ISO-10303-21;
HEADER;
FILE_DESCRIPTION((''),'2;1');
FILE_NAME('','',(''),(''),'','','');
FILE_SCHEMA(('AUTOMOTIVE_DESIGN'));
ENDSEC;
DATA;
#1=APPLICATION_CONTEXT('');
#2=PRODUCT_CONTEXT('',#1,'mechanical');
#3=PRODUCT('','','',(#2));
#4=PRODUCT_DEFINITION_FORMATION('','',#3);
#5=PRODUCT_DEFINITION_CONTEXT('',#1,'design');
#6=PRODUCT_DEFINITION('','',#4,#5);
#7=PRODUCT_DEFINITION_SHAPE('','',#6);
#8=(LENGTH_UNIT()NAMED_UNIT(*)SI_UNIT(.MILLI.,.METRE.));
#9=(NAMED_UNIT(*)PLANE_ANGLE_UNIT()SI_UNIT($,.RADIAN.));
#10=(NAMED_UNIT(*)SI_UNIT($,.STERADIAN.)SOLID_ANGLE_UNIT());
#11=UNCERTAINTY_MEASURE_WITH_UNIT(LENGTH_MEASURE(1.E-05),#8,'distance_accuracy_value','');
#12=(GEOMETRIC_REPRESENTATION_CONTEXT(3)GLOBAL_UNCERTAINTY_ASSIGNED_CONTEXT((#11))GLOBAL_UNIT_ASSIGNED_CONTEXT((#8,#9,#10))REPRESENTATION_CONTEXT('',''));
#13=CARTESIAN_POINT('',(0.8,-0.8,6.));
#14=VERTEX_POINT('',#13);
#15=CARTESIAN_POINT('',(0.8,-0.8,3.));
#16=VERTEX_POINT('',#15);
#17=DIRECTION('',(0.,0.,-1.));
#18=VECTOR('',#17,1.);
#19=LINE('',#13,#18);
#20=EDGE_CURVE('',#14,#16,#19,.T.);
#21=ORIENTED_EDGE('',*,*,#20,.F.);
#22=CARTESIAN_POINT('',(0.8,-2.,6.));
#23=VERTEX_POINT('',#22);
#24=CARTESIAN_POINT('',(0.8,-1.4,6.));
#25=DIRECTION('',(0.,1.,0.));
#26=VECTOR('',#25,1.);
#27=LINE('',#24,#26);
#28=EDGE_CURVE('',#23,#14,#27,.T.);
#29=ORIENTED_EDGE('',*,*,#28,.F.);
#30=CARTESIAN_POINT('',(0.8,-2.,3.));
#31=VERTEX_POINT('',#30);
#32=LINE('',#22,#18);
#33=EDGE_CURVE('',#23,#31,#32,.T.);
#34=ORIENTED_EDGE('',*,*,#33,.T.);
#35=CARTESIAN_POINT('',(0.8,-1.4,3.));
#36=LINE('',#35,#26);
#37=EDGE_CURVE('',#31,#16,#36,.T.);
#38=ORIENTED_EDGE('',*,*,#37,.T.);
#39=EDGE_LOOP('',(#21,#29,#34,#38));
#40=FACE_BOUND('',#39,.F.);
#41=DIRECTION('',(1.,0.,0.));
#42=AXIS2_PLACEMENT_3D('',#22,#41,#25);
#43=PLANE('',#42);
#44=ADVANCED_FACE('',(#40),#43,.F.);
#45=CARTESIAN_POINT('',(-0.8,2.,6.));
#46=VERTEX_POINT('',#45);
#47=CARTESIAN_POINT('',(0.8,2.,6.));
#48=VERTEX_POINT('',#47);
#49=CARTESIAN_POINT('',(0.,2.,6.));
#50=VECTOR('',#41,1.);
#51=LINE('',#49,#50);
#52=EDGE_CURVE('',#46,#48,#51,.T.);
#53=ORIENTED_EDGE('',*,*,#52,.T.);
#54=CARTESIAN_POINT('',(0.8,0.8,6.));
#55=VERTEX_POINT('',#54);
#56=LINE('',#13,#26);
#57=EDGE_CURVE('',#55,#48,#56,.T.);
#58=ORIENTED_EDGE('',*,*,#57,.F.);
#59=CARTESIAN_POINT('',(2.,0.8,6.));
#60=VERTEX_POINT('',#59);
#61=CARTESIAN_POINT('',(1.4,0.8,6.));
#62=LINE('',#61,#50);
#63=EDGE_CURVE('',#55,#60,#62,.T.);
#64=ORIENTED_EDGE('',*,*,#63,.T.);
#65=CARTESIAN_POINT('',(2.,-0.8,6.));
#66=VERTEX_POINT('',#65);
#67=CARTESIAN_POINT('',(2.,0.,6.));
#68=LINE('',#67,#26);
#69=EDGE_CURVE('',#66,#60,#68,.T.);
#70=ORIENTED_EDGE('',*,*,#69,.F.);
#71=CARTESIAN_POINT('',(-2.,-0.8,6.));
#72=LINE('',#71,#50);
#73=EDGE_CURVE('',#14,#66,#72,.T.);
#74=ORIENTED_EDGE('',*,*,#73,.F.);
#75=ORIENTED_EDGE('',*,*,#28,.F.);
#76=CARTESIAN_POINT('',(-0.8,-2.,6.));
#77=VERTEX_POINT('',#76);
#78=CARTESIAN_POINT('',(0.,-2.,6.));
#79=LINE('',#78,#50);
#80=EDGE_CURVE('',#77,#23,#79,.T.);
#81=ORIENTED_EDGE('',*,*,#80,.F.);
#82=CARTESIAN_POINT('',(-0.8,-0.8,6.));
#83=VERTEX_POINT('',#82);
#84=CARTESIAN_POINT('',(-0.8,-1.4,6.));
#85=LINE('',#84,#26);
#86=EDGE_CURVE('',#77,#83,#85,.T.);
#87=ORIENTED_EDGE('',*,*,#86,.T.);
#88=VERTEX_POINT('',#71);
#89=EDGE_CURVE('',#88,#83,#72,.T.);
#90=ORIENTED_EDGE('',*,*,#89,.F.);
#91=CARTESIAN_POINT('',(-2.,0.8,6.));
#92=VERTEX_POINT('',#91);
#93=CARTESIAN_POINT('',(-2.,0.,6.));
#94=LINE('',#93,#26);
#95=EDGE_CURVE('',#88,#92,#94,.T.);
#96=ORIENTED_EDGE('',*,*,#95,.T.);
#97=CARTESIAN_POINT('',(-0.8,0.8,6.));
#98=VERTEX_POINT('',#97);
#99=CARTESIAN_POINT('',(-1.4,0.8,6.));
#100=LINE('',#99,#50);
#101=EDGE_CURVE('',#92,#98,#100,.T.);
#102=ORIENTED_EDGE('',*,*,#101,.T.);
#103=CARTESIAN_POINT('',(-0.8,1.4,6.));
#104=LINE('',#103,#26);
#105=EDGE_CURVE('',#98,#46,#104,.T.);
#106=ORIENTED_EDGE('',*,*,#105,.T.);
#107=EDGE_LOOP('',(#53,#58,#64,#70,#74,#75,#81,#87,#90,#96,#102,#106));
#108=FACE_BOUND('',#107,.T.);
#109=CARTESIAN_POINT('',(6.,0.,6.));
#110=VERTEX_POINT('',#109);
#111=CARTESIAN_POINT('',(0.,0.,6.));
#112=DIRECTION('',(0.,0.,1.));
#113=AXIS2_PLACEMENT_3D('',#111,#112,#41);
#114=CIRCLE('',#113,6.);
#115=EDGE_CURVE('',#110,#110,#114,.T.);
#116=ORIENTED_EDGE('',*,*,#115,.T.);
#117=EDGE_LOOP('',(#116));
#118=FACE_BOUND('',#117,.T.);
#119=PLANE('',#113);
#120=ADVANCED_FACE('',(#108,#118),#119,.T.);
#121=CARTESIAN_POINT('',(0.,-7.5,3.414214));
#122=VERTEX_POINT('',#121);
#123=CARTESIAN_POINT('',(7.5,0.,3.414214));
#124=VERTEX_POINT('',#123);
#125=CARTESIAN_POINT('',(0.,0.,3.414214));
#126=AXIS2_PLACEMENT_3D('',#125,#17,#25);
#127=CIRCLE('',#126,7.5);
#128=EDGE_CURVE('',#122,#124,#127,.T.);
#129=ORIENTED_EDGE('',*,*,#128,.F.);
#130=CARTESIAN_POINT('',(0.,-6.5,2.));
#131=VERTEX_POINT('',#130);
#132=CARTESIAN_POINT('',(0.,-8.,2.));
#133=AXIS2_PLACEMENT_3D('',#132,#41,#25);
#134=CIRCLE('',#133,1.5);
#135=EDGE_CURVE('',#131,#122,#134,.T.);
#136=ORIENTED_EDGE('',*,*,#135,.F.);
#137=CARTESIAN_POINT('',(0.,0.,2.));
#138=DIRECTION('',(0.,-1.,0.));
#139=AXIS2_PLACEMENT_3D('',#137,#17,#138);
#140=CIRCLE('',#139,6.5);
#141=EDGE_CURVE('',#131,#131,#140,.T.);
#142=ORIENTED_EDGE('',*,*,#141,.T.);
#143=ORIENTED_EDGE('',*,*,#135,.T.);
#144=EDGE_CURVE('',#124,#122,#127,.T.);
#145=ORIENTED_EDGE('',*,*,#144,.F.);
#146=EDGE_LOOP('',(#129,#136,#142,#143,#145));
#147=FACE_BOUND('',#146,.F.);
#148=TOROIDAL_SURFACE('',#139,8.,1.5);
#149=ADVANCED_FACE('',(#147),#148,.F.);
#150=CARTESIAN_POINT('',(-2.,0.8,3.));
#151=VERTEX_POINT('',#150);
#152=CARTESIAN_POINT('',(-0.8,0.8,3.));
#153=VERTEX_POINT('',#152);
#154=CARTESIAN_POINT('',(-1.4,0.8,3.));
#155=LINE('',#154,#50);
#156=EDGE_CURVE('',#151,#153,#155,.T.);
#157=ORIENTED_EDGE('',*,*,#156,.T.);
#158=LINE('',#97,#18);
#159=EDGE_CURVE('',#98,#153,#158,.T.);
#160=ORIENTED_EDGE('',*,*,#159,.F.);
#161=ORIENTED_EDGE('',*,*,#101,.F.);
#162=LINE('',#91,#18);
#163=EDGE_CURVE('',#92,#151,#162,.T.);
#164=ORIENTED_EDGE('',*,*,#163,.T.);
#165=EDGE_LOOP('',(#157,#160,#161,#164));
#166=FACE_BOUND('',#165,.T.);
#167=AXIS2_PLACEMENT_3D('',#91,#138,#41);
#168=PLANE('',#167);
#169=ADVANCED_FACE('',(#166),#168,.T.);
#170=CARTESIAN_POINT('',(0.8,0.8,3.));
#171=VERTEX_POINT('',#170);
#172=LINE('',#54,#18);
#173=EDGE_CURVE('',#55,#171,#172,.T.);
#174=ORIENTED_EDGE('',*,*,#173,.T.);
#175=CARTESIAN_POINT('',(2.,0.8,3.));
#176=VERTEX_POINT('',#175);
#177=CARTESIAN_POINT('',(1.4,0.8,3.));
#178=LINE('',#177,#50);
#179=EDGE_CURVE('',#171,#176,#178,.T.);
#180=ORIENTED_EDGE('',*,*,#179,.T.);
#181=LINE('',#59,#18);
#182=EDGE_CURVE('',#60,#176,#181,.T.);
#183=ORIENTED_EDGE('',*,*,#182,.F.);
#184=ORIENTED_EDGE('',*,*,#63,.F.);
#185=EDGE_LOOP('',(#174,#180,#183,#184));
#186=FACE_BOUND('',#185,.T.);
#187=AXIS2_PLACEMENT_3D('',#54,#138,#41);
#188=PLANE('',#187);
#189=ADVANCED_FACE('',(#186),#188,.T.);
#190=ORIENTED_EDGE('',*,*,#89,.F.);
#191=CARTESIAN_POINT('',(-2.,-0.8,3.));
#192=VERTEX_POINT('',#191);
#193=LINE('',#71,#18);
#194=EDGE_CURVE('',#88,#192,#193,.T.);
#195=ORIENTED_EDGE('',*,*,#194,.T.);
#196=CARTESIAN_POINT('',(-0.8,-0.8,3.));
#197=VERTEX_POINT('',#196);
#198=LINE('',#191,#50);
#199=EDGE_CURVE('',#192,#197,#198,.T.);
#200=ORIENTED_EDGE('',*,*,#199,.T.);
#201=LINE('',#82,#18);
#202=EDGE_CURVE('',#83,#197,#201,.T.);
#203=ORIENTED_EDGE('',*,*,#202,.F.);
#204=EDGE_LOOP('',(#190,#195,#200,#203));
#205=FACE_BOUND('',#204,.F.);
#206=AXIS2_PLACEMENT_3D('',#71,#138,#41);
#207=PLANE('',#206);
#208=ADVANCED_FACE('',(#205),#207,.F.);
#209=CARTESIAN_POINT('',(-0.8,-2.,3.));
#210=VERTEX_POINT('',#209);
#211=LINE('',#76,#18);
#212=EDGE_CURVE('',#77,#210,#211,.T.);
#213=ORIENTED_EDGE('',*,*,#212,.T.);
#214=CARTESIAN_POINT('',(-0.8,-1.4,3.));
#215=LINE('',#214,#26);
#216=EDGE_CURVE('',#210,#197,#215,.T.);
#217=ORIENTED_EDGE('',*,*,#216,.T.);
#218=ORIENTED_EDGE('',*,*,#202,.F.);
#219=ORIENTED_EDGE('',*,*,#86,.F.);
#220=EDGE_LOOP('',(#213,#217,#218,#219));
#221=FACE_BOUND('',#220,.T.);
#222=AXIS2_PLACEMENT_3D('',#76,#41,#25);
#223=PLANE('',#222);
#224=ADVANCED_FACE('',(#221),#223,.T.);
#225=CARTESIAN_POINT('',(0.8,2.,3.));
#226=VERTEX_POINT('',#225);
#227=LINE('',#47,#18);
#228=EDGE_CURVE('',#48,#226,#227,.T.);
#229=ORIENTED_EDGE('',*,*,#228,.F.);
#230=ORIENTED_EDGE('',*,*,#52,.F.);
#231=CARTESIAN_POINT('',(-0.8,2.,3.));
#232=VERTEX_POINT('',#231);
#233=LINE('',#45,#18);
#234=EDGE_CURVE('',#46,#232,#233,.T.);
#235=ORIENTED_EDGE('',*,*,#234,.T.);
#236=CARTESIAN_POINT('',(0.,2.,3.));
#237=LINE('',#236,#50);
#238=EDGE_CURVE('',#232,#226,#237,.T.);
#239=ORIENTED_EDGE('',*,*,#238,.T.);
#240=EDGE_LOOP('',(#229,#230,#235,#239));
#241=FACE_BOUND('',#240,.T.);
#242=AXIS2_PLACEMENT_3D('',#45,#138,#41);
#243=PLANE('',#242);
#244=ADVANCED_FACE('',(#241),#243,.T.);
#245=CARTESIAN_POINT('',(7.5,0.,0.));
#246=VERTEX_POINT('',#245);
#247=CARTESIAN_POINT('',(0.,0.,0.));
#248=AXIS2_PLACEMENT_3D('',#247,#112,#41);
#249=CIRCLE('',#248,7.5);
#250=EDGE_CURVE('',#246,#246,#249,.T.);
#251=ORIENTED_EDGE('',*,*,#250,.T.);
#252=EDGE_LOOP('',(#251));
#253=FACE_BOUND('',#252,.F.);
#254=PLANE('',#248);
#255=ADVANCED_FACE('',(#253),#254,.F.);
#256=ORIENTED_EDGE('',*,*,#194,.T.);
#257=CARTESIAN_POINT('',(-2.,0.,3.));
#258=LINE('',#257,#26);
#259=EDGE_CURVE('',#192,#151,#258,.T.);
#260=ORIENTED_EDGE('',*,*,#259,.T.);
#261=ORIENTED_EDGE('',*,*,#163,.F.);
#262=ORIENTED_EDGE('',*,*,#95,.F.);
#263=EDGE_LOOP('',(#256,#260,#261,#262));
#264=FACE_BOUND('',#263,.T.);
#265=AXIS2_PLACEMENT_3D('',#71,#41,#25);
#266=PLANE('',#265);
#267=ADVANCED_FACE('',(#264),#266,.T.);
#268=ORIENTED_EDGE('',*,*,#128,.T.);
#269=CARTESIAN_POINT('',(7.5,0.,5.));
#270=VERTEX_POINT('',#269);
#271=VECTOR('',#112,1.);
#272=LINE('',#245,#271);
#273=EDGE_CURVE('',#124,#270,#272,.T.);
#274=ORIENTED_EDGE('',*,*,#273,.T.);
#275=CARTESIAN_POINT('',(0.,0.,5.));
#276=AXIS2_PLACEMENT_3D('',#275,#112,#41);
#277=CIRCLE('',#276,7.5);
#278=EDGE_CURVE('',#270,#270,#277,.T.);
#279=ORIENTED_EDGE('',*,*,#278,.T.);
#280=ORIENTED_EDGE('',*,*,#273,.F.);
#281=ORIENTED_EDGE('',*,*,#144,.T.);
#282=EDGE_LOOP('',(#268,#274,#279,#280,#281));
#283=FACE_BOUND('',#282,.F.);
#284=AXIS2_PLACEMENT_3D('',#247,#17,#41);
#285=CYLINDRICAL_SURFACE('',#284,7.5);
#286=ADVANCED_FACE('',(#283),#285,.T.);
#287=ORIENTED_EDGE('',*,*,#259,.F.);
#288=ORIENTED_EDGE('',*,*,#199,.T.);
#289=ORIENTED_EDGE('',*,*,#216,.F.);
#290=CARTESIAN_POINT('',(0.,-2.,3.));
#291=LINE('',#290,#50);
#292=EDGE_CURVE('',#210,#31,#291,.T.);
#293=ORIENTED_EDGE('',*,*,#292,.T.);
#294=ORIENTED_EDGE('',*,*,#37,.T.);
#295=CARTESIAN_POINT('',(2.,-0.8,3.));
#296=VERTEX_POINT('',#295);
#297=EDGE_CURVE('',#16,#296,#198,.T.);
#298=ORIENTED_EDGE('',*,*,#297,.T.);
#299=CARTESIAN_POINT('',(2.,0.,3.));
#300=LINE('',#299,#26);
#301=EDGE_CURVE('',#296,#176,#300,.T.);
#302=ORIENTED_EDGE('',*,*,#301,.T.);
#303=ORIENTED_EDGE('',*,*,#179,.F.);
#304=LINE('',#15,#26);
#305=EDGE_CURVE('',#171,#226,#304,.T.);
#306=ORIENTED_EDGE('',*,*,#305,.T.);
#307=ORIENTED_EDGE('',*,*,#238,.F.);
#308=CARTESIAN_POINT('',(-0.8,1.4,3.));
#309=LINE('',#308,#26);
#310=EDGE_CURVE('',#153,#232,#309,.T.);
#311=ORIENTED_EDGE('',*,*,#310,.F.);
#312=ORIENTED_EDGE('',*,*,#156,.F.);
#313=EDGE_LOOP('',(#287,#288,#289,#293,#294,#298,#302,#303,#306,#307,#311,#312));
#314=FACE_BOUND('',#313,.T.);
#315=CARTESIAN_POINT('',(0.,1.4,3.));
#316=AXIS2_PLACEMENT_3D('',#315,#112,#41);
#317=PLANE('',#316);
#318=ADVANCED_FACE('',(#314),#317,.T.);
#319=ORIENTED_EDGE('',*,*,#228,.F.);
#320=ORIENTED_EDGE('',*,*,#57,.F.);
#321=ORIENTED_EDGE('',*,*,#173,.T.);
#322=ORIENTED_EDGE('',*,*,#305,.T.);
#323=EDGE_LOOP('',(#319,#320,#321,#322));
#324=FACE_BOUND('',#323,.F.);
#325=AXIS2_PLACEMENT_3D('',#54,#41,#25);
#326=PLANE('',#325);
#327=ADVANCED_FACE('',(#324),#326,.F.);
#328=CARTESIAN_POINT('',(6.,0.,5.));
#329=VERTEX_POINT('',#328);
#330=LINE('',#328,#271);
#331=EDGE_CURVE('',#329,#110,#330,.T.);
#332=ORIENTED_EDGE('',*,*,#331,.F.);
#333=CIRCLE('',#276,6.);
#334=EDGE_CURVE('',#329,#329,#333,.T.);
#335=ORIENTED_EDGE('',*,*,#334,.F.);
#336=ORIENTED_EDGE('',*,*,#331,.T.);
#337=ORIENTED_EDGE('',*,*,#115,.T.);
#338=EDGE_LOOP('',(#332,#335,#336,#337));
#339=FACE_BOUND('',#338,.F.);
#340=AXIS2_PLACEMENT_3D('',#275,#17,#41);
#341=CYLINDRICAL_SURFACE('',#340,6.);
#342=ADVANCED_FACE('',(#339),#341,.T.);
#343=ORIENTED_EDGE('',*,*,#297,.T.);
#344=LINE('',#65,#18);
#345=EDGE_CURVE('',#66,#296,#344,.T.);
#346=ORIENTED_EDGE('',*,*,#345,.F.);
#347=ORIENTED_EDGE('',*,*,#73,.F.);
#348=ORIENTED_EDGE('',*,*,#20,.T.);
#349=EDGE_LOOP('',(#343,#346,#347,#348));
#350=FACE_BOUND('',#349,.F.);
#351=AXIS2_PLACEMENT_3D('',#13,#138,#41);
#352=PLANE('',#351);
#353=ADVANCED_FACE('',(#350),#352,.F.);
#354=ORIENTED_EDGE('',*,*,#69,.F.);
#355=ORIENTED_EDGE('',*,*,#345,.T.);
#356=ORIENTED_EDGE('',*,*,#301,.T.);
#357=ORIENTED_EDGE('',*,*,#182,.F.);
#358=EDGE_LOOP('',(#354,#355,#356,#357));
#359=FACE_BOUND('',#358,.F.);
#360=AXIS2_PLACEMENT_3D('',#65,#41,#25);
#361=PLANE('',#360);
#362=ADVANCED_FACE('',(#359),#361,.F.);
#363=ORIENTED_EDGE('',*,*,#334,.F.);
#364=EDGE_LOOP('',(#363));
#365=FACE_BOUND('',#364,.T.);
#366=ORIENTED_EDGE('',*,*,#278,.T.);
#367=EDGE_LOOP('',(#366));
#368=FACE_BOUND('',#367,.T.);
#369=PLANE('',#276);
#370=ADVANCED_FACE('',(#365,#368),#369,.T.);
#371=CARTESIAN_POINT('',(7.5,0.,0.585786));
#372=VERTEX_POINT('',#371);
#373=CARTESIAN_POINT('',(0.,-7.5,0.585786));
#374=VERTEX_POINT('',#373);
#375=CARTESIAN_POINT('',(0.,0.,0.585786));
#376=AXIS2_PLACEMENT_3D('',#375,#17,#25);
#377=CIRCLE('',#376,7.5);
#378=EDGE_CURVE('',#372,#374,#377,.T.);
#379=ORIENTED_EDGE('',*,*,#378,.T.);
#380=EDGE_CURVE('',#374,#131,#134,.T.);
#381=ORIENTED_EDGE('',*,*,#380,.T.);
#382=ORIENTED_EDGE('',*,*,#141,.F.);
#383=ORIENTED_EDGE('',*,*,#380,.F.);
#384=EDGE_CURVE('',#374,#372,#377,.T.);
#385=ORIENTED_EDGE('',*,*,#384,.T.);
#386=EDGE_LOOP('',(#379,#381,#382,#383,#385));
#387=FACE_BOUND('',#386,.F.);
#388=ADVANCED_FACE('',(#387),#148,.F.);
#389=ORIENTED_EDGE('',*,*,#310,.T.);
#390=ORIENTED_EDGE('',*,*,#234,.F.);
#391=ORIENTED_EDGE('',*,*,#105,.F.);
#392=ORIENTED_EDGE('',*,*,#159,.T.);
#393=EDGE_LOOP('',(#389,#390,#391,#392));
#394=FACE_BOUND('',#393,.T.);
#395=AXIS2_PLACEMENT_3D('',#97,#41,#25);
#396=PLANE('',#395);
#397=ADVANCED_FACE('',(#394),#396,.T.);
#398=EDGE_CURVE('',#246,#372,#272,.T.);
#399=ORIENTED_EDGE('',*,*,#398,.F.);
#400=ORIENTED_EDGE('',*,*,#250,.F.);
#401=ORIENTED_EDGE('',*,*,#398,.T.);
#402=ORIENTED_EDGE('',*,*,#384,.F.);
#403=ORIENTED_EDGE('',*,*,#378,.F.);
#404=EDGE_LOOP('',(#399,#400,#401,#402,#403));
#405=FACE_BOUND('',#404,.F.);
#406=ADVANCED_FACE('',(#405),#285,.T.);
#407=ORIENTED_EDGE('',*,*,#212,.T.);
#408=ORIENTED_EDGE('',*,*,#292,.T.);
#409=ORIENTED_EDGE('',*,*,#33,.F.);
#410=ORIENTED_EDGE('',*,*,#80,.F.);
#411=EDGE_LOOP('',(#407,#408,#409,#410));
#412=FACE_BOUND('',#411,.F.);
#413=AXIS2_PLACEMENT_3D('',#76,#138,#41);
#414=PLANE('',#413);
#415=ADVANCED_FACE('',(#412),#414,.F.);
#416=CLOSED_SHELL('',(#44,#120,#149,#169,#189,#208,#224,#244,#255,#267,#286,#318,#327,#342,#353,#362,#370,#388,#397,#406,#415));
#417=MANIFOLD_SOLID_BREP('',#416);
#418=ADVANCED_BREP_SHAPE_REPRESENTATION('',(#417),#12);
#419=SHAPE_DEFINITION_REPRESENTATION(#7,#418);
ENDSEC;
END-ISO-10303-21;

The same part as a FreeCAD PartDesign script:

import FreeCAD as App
import Part
import Sketcher
from FreeCAD import Vector

doc = App.newDocument("Part")
body = doc.addObject("PartDesign::Body", "Body")

# Sketch on XY plane
sketch1 = body.newObject("Sketcher::SketchObject", "Sketch")
sketch1.AttachmentSupport = (doc.getObject("XY_Plane"), [""])
sketch1.MapMode = "FlatFace"
sketch1.addGeometry(Part.Circle(Vector(0, 0, 0), Vector(0, 0, 1), 7.5), False)
sketch1.addConstraint([
    Sketcher.Constraint("Coincident", 0, 3, -1, 1),
    Sketcher.Constraint("Diameter", 0, 15.0),
])
pad1 = body.newObject("PartDesign::Pad", "Pad")
pad1.Profile = sketch1
pad1.Length = 5

# Sketch on XY plane
sketch2 = body.newObject("Sketcher::SketchObject", "Sketch001")
sketch2.AttachmentSupport = (doc.getObject("XY_Plane"), [""])
sketch2.MapMode = "FlatFace"
sketch2.AttachmentOffset = App.Placement(Vector(0, 0, 5), App.Rotation())
sketch2.addGeometry(Part.Circle(Vector(0, 0, 0), Vector(0, 0, 1), 6), False)
sketch2.addConstraint([
    Sketcher.Constraint("Coincident", 0, 3, -1, 1),
    Sketcher.Constraint("Diameter", 0, 12.0),
])
pad2 = body.newObject("PartDesign::Pad", "Pad001")
pad2.Profile = sketch2
pad2.Length = 1

# Sketch on XY plane
sketch3 = body.newObject("Sketcher::SketchObject", "Sketch002")
sketch3.AttachmentSupport = (doc.getObject("XY_Plane"), [""])
sketch3.MapMode = "FlatFace"
sketch3.AttachmentOffset = App.Placement(Vector(0, 0, 6), App.Rotation())
sketch3.addGeometry([
    Part.LineSegment(Vector(-0.8, 2, 0), Vector(-0.8, 0.8, 0)),  # 0
    Part.LineSegment(Vector(-0.8, 0.8, 0), Vector(-2, 0.8, 0)),  # 1
    Part.LineSegment(Vector(-2, 0.8, 0), Vector(-2, -0.8, 0)),  # 2
    Part.LineSegment(Vector(-2, -0.8, 0), Vector(-0.8, -0.8, 0)),  # 3
    Part.LineSegment(Vector(-0.8, -0.8, 0), Vector(-0.8, -2, 0)),  # 4
    Part.LineSegment(Vector(-0.8, -2, 0), Vector(0.8, -2, 0)),  # 5
    Part.LineSegment(Vector(0.8, -2, 0), Vector(0.8, -0.8, 0)),  # 6
    Part.LineSegment(Vector(0.8, -0.8, 0), Vector(2, -0.8, 0)),  # 7
    Part.LineSegment(Vector(2, -0.8, 0), Vector(2, 0.8, 0)),  # 8
    Part.LineSegment(Vector(2, 0.8, 0), Vector(0.8, 0.8, 0)),  # 9
    Part.LineSegment(Vector(0.8, 0.8, 0), Vector(0.8, 2, 0)),  # 10
    Part.LineSegment(Vector(0.8, 2, 0), Vector(-0.8, 2, 0)),  # 11
], False)
sketch3.addConstraint([
    Sketcher.Constraint("Coincident", 0, 2, 1, 1),
    Sketcher.Constraint("Coincident", 1, 2, 2, 1),
    Sketcher.Constraint("Coincident", 2, 2, 3, 1),
    Sketcher.Constraint("Coincident", 3, 2, 4, 1),
    Sketcher.Constraint("Coincident", 4, 2, 5, 1),
    Sketcher.Constraint("Coincident", 5, 2, 6, 1),
    Sketcher.Constraint("Coincident", 6, 2, 7, 1),
    Sketcher.Constraint("Coincident", 7, 2, 8, 1),
    Sketcher.Constraint("Coincident", 8, 2, 9, 1),
    Sketcher.Constraint("Coincident", 9, 2, 10, 1),
    Sketcher.Constraint("Coincident", 10, 2, 11, 1),
    Sketcher.Constraint("Coincident", 11, 2, 0, 1),
    Sketcher.Constraint("Vertical", 0),
    Sketcher.Constraint("Horizontal", 1),
    Sketcher.Constraint("Vertical", 2),
    Sketcher.Constraint("Horizontal", 3),
    Sketcher.Constraint("Vertical", 4),
    Sketcher.Constraint("Horizontal", 5),
    Sketcher.Constraint("Vertical", 6),
    Sketcher.Constraint("Horizontal", 7),
    Sketcher.Constraint("Vertical", 8),
    Sketcher.Constraint("Horizontal", 9),
    Sketcher.Constraint("Vertical", 10),
    Sketcher.Constraint("Horizontal", 11),
    Sketcher.Constraint("Symmetric", 0, 2, 6, 2, -1, 1),
    Sketcher.Constraint("Symmetric", 2, 2, 8, 2, -1, 1),
    Sketcher.Constraint("Symmetric", 4, 2, 10, 2, -1, 1),
    Sketcher.Constraint("Symmetric", 3, 2, 6, 2, -2),
    Sketcher.Constraint("Equal", 9, 0),
    Sketcher.Constraint("Equal", 11, 2),
    Sketcher.Constraint("DistanceX", 1, 2, 1, 1, 1.2),
    Sketcher.Constraint("DistanceX", 5, 1, 5, 2, 1.6),
])
pocket1 = body.newObject("PartDesign::Pocket", "Pocket")
pocket1.Profile = sketch3
pocket1.Length = 3

# Sketch on YZ plane
sketch4 = body.newObject("Sketcher::SketchObject", "Sketch003")
sketch4.AttachmentSupport = (doc.getObject("YZ_Plane"), [""])
sketch4.MapMode = "FlatFace"
sketch4.addGeometry(Part.Circle(Vector(-8, 2, 0), Vector(0, 0, 1), 1.5), False)
sketch4.addConstraint([
    Sketcher.Constraint("Diameter", 0, 3.0),
    Sketcher.Constraint("DistanceX", 0, 3, -1, 1, 8.0),
    Sketcher.Constraint("DistanceY", -1, 1, 0, 3, 2.0),
])
groove = body.newObject("PartDesign::Groove", "Groove")
groove.Profile = sketch4
groove.ReferenceAxis = (sketch4, ["V_Axis"])
groove.Angle = 360

doc.recompute()
